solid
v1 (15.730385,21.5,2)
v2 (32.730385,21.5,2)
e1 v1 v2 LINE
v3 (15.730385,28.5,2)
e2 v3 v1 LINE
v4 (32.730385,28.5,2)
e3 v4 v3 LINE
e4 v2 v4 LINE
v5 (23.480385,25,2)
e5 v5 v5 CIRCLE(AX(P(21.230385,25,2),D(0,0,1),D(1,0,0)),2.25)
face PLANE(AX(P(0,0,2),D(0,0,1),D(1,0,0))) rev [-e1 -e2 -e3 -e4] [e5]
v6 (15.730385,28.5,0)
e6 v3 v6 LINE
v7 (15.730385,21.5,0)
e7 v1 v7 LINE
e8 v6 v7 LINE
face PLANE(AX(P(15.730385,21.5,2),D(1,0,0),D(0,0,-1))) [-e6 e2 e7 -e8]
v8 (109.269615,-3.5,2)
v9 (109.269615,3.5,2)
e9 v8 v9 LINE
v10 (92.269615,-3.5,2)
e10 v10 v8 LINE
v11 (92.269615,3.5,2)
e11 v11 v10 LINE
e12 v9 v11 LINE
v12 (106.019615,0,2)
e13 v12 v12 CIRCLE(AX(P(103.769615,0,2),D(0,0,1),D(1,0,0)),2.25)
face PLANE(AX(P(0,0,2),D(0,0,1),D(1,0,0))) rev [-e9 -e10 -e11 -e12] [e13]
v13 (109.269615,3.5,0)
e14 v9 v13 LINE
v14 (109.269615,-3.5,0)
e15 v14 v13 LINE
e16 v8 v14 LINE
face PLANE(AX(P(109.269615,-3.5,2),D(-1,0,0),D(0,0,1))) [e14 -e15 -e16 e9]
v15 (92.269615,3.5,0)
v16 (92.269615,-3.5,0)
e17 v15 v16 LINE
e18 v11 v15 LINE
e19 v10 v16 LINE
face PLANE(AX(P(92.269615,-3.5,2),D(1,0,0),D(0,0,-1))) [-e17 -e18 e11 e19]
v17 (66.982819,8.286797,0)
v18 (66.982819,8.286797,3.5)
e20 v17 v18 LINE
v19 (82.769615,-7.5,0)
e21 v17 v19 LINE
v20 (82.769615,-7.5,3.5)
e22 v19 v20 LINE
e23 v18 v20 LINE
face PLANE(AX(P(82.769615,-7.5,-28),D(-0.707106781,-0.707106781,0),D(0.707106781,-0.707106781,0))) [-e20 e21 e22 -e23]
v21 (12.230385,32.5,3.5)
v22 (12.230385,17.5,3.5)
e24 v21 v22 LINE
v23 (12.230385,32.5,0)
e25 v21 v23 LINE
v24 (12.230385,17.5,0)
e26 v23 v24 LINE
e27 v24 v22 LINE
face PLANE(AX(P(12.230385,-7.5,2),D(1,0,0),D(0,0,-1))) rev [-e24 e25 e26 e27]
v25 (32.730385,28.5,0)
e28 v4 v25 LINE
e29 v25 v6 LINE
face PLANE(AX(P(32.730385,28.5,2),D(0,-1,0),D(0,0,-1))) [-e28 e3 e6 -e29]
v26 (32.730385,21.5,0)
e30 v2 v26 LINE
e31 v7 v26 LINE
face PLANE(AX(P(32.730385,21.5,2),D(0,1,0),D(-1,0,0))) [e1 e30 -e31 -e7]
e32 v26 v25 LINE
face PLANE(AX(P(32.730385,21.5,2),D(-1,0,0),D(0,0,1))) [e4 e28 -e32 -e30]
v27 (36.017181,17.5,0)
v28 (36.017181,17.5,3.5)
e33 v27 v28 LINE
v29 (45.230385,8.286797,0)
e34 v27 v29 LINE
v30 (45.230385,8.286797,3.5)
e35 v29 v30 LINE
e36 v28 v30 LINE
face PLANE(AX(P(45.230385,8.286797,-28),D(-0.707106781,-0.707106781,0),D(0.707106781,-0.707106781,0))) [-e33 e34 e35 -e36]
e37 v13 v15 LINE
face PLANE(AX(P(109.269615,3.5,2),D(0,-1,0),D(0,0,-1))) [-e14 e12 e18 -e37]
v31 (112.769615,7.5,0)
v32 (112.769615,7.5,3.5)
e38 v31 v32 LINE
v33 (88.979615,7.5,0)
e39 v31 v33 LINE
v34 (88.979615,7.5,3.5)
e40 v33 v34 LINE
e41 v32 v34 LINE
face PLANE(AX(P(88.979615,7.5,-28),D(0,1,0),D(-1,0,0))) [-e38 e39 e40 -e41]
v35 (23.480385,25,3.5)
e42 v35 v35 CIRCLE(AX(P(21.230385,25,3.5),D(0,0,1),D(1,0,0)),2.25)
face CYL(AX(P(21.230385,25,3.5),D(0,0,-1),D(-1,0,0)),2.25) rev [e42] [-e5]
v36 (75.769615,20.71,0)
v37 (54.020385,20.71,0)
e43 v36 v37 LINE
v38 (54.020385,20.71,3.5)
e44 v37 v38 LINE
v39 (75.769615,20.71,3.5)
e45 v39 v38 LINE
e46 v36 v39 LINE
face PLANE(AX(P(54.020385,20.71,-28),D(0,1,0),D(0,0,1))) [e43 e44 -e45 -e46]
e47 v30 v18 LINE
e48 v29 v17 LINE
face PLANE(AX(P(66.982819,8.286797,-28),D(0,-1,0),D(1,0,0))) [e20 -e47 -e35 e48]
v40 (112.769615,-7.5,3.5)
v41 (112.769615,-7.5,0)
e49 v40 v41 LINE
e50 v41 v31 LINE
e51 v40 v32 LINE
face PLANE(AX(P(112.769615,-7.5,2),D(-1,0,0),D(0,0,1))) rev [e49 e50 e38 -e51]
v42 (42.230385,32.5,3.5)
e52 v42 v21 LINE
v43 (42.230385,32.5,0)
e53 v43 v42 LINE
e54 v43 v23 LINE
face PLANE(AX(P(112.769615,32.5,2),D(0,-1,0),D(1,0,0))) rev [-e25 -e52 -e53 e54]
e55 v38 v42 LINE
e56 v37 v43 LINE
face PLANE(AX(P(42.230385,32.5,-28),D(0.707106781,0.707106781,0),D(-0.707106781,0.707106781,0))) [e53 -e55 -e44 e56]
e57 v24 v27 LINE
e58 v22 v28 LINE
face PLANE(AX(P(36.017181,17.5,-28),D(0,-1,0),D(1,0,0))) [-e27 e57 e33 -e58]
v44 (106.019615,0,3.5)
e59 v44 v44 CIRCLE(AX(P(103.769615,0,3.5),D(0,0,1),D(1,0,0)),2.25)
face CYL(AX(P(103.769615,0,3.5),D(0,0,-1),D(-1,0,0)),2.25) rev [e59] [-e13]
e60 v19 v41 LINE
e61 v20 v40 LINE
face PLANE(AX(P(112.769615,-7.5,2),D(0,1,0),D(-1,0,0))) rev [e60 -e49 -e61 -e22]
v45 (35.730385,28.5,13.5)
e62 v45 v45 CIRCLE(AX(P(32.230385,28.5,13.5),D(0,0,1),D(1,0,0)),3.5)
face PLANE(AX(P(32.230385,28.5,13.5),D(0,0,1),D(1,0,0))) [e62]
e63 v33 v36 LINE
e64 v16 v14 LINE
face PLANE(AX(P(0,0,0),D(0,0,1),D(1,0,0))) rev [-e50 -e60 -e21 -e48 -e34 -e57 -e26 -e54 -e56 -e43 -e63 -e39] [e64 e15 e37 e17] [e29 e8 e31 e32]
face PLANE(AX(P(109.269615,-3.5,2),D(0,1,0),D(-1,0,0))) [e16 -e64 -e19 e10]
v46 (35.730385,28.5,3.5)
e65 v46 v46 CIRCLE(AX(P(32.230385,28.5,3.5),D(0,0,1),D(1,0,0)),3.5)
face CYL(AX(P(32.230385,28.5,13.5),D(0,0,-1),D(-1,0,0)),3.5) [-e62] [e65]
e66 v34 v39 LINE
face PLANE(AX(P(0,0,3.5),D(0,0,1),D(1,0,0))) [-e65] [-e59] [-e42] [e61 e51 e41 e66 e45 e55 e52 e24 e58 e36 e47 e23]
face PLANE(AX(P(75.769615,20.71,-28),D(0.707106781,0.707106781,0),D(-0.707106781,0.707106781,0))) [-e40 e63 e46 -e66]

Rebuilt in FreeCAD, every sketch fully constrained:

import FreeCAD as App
import Part
import Sketcher

V = App.Vector
Q = App.Units.Quantity

doc = App.newDocument("Part")
body = doc.addObject("PartDesign::Body", "Body")

# Sketch on XY plane
sketch1 = body.newObject("Sketcher::SketchObject", "Sketch")
sketch1.AttachmentSupport = (doc.getObject("XY_Plane"), [""])
sketch1.MapMode = "FlatFace"
sketch1.addGeometry([
    Part.LineSegment(V(12, 32, 0), V(12, -8, 0)),  # 0
    Part.LineSegment(V(12, -8, 0), V(113, -8, 0)),  # 1
    Part.LineSegment(V(113, -8, 0), V(113, 32, 0)),  # 2
    Part.LineSegment(V(113, 32, 0), V(12, 32, 0)),  # 3
    Part.LineSegment(V(109, -4, 0), V(92, -4, 0)),  # 4
    Part.LineSegment(V(92, -4, 0), V(92, 4, 0)),  # 5
    Part.LineSegment(V(92, 4, 0), V(109, 4, 0)),  # 6
    Part.LineSegment(V(109, 4, 0), V(109, -4, 0)),  # 7
    Part.LineSegment(V(33, 22, 0), V(16, 22, 0)),  # 8
    Part.LineSegment(V(16, 22, 0), V(16, 28, 0)),  # 9
    Part.LineSegment(V(16, 28, 0), V(33, 28, 0)),  # 10
    Part.LineSegment(V(33, 28, 0), V(33, 22, 0)),  # 11
], False)
sketch1.addConstraint([
    Sketcher.Constraint("Coincident", 0, 2, 1, 1),
    Sketcher.Constraint("Coincident", 1, 2, 2, 1),
    Sketcher.Constraint("Coincident", 2, 2, 3, 1),
    Sketcher.Constraint("Coincident", 3, 2, 0, 1),
    Sketcher.Constraint("Coincident", 4, 2, 5, 1),
    Sketcher.Constraint("Coincident", 5, 2, 6, 1),
    Sketcher.Constraint("Coincident", 6, 2, 7, 1),
    Sketcher.Constraint("Coincident", 7, 2, 4, 1),
    Sketcher.Constraint("Coincident", 8, 2, 9, 1),
    Sketcher.Constraint("Coincident", 9, 2, 10, 1),
    Sketcher.Constraint("Coincident", 10, 2, 11, 1),
    Sketcher.Constraint("Coincident", 11, 2, 8, 1),
    Sketcher.Constraint("Vertical", 0),
    Sketcher.Constraint("Horizontal", 1),
    Sketcher.Constraint("Vertical", 2),
    Sketcher.Constraint("Horizontal", 3),
    Sketcher.Constraint("Horizontal", 4),
    Sketcher.Constraint("Vertical", 5),
    Sketcher.Constraint("Horizontal", 6),
    Sketcher.Constraint("Vertical", 7),
    Sketcher.Constraint("Horizontal", 8),
    Sketcher.Constraint("Vertical", 9),
    Sketcher.Constraint("Horizontal", 10),
    Sketcher.Constraint("Vertical", 11),
    Sketcher.Constraint("Equal", 6, 8),
    Sketcher.Constraint("Equal", 7, 9),
    Sketcher.Constraint("DistanceX", 4, 2, 4, 1, 17.0),
    Sketcher.Constraint("DistanceY", 0, 2, 0, 1, 40.0),
    Sketcher.Constraint("DistanceY", 5, 1, 5, 2, 7.0),
    Sketcher.Constraint("DistanceY", 1, 2, 4, 2, 4.0),
    Sketcher.Constraint("DistanceY", 8, 2, 3, 2, 11.0),
    Sketcher.Constraint("DistanceY", 0, 2, -1, 1, 7.5),
    Sketcher.Constraint("DistanceX", 4, 2, 1, 2, 20.5),
    Sketcher.Constraint("DistanceX", 3, 2, 8, 2, 3.5),
    Sketcher.Constraint("DistanceX", 1, 1, 1, 2, 100.53923),
    Sketcher.Constraint("DistanceX", -1, 1, 0, 2, 12.230385),
])
pad1 = body.newObject("PartDesign::Pad", "Pad")
pad1.Profile = sketch1
pad1.Length = 2

# Sketch on XY plane
sketch2 = body.newObject("Sketcher::SketchObject", "Sketch001")
sketch2.AttachmentSupport = (doc.getObject("XY_Plane"), [""])
sketch2.MapMode = "FlatFace"
sketch2.AttachmentOffset = App.Placement(V(0, 0, 2), App.Rotation())
sketch2.addGeometry([
    Part.LineSegment(V(12.2, 32.5, 0), V(12.2, -7.5, 0)),  # 0
    Part.LineSegment(V(12.2, -7.5, 0), V(112.8, -7.5, 0)),  # 1
    Part.LineSegment(V(112.8, -7.5, 0), V(112.8, 32.5, 0)),  # 2
    Part.LineSegment(V(112.8, 32.5, 0), V(12.2, 32.5, 0)),  # 3
    Part.Circle(V(103.8, 0, 0), V(0, 0, 1), 2.2),  # 4
    Part.Circle(V(21.2, 25, 0), V(0, 0, 1), 2.2),  # 5
], False)
sketch2.addConstraint([
    Sketcher.Constraint("Coincident", 0, 2, 1, 1),
    Sketcher.Constraint("Coincident", 1, 2, 2, 1),
    Sketcher.Constraint("Coincident", 2, 2, 3, 1),
    Sketcher.Constraint("Coincident", 3, 2, 0, 1),
    Sketcher.Constraint("Vertical", 0),
    Sketcher.Constraint("Horizontal", 1),
    Sketcher.Constraint("Vertical", 2),
    Sketcher.Constraint("Horizontal", 3),
    Sketcher.Constraint("Equal", 4, 5),
    Sketcher.Constraint("PointOnObject", 4, 3, -1),
    Sketcher.Constraint("Diameter", 4, 4.5),
    Sketcher.Constraint("DistanceY", 0, 2, 0, 1, 40.0),
    Sketcher.Constraint("DistanceY", -1, 1, 5, 3, 25.0),
    Sketcher.Constraint("DistanceX", 0, 2, 5, 3, 9.0),
    Sketcher.Constraint("DistanceX", 4, 3, 1, 2, 9.0),
    Sketcher.Constraint("DistanceY", 0, 2, -1, 1, 7.5),
    Sketcher.Constraint("DistanceX", 1, 1, 1, 2, 100.53923),
    Sketcher.Constraint("DistanceX", -1, 1, 4, 3, 103.769615),
])
pad2 = body.newObject("PartDesign::Pad", "Pad001")
pad2.Profile = sketch2
pad2.Length = 1.5

# Sketch on XY plane
sketch3 = body.newObject("Sketcher::SketchObject", "Sketch002")
sketch3.AttachmentSupport = (doc.getObject("XY_Plane"), [""])
sketch3.MapMode = "FlatFace"
sketch3.AttachmentOffset = App.Placement(V(0, 0, 3.5), App.Rotation())
sketch3.addGeometry([
    Part.LineSegment(V(-11, 55, 0), V(-11, -40, 0)),  # 0
    Part.LineSegment(V(-11, -40, 0), V(174, -40, 0)),  # 1
    Part.LineSegment(V(174, -40, 0), V(174, 55, 0)),  # 2
    Part.LineSegment(V(174, 55, 0), V(-11, 55, 0)),  # 3
    Part.LineSegment(V(12, 18, 0), V(12, 32, 0)),  # 4
    Part.LineSegment(V(12, 32, 0), V(42, 32, 0)),  # 5
    Part.LineSegment(V(42, 32, 0), V(54, 21, 0)),  # 6
    Part.LineSegment(V(54, 21, 0), V(76, 21, 0)),  # 7
    Part.LineSegment(V(76, 21, 0), V(89, 8, 0)),  # 8
    Part.LineSegment(V(89, 8, 0), V(113, 8, 0)),  # 9
    Part.LineSegment(V(113, 8, 0), V(113, -8, 0)),  # 10
    Part.LineSegment(V(113, -8, 0), V(83, -8, 0)),  # 11
    Part.LineSegment(V(83, -8, 0), V(67, 8, 0)),  # 12
    Part.LineSegment(V(67, 8, 0), V(45, 8, 0)),  # 13
    Part.LineSegment(V(45, 8, 0), V(36, 18, 0)),  # 14
    Part.LineSegment(V(36, 18, 0), V(12, 18, 0)),  # 15
], False)
sketch3.addConstraint([
    Sketcher.Constraint("Coincident", 0, 2, 1, 1),
    Sketcher.Constraint("Coincident", 1, 2, 2, 1),
    Sketcher.Constraint("Coincident", 2, 2, 3, 1),
    Sketcher.Constraint("Coincident", 3, 2, 0, 1),
    Sketcher.Constraint("Coincident", 4, 2, 5, 1),
    Sketcher.Constraint("Coincident", 5, 2, 6, 1),
    Sketcher.Constraint("Coincident", 6, 2, 7, 1),
    Sketcher.Constraint("Coincident", 7, 2, 8, 1),
    Sketcher.Constraint("Coincident", 8, 2, 9, 1),
    Sketcher.Constraint("Coincident", 9, 2, 10, 1),
    Sketcher.Constraint("Coincident", 10, 2, 11, 1),
    Sketcher.Constraint("Coincident", 11, 2, 12, 1),
    Sketcher.Constraint("Coincident", 12, 2, 13, 1),
    Sketcher.Constraint("Coincident", 13, 2, 14, 1),
    Sketcher.Constraint("Coincident", 14, 2, 15, 1),
    Sketcher.Constraint("Coincident", 15, 2, 4, 1),
    Sketcher.Constraint("Vertical", 0),
    Sketcher.Constraint("Horizontal", 1),
    Sketcher.Constraint("Vertical", 2),
    Sketcher.Constraint("Horizontal", 3),
    Sketcher.Constraint("Vertical", 4),
    Sketcher.Constraint("Horizontal", 5),
    Sketcher.Constraint("Horizontal", 7),
    Sketcher.Constraint("Horizontal", 9),
    Sketcher.Constraint("Vertical", 10),
    Sketcher.Constraint("Horizontal", 11),
    Sketcher.Constraint("Horizontal", 13),
    Sketcher.Constraint("Horizontal", 15),
    Sketcher.Constraint("Parallel", 6, 8),
    Sketcher.Constraint("Parallel", 8, 12),
    Sketcher.Constraint("Parallel", 12, 14),
    Sketcher.Constraint("Equal", 5, 11),
    Sketcher.Constraint("Equal", 4, 10),
    Sketcher.Constraint("DistanceX", 5, 1, 5, 2, 30.0),
    Sketcher.Constraint("DistanceY", 4, 1, 4, 2, 15.0),
    Sketcher.Constraint("Angle", 6, Q("-45 deg")),
    Sketcher.Constraint("DistanceY", 8, 2, 5, 2, 25.0),
    Sketcher.Constraint("DistanceX", 7, 2, 9, 2, 37.0),
    Sketcher.Constraint("DistanceX", 5, 2, 13, 2, 3.0),
    Sketcher.Constraint("DistanceX", 9, 1, 9, 2, 23.79),
    Sketcher.Constraint("DistanceY", -1, 1, 4, 2, 32.5),
    Sketcher.Constraint("Distance", 12, 22.325902),
    Sketcher.Constraint("DistanceX", 7, 1, 7, 2, 21.74923),
    Sketcher.Constraint("DistanceY", 0, 2, 0, 1, 94.825171),
    Sketcher.Constraint("DistanceX", 1, 1, 1, 2, 184.808915),
    Sketcher.Constraint("DistanceX", 0, 2, -1, 1, 11.173041),
    Sketcher.Constraint("DistanceX", -1, 1, 12, 2, 66.982819),
    Sketcher.Constraint("DistanceY", 0, 2, -1, 1, 39.580897),
])
pocket1 = body.newObject("PartDesign::Pocket", "Pocket")
pocket1.Profile = sketch3
pocket1.Length = 31.5

# Sketch on XY plane
sketch4 = body.newObject("Sketcher::SketchObject", "Sketch003")
sketch4.AttachmentSupport = (doc.getObject("XY_Plane"), [""])
sketch4.MapMode = "FlatFace"
sketch4.AttachmentOffset = App.Placement(V(0, 0, 3.5), App.Rotation())
sketch4.addGeometry(Part.Circle(V(32.2, 28.5, 0), V(0, 0, 1), 3.5), False)
sketch4.addConstraint([
    Sketcher.Constraint("Diameter", 0, 7.0),
    Sketcher.Constraint("DistanceY", -1, 1, 0, 3, 28.5),
    Sketcher.Constraint("DistanceX", -1, 1, 0, 3, 32.230385),
])
pad3 = body.newObject("PartDesign::Pad", "Pad002")
pad3.Profile = sketch4
pad3.Length = 10

doc.recompute()
